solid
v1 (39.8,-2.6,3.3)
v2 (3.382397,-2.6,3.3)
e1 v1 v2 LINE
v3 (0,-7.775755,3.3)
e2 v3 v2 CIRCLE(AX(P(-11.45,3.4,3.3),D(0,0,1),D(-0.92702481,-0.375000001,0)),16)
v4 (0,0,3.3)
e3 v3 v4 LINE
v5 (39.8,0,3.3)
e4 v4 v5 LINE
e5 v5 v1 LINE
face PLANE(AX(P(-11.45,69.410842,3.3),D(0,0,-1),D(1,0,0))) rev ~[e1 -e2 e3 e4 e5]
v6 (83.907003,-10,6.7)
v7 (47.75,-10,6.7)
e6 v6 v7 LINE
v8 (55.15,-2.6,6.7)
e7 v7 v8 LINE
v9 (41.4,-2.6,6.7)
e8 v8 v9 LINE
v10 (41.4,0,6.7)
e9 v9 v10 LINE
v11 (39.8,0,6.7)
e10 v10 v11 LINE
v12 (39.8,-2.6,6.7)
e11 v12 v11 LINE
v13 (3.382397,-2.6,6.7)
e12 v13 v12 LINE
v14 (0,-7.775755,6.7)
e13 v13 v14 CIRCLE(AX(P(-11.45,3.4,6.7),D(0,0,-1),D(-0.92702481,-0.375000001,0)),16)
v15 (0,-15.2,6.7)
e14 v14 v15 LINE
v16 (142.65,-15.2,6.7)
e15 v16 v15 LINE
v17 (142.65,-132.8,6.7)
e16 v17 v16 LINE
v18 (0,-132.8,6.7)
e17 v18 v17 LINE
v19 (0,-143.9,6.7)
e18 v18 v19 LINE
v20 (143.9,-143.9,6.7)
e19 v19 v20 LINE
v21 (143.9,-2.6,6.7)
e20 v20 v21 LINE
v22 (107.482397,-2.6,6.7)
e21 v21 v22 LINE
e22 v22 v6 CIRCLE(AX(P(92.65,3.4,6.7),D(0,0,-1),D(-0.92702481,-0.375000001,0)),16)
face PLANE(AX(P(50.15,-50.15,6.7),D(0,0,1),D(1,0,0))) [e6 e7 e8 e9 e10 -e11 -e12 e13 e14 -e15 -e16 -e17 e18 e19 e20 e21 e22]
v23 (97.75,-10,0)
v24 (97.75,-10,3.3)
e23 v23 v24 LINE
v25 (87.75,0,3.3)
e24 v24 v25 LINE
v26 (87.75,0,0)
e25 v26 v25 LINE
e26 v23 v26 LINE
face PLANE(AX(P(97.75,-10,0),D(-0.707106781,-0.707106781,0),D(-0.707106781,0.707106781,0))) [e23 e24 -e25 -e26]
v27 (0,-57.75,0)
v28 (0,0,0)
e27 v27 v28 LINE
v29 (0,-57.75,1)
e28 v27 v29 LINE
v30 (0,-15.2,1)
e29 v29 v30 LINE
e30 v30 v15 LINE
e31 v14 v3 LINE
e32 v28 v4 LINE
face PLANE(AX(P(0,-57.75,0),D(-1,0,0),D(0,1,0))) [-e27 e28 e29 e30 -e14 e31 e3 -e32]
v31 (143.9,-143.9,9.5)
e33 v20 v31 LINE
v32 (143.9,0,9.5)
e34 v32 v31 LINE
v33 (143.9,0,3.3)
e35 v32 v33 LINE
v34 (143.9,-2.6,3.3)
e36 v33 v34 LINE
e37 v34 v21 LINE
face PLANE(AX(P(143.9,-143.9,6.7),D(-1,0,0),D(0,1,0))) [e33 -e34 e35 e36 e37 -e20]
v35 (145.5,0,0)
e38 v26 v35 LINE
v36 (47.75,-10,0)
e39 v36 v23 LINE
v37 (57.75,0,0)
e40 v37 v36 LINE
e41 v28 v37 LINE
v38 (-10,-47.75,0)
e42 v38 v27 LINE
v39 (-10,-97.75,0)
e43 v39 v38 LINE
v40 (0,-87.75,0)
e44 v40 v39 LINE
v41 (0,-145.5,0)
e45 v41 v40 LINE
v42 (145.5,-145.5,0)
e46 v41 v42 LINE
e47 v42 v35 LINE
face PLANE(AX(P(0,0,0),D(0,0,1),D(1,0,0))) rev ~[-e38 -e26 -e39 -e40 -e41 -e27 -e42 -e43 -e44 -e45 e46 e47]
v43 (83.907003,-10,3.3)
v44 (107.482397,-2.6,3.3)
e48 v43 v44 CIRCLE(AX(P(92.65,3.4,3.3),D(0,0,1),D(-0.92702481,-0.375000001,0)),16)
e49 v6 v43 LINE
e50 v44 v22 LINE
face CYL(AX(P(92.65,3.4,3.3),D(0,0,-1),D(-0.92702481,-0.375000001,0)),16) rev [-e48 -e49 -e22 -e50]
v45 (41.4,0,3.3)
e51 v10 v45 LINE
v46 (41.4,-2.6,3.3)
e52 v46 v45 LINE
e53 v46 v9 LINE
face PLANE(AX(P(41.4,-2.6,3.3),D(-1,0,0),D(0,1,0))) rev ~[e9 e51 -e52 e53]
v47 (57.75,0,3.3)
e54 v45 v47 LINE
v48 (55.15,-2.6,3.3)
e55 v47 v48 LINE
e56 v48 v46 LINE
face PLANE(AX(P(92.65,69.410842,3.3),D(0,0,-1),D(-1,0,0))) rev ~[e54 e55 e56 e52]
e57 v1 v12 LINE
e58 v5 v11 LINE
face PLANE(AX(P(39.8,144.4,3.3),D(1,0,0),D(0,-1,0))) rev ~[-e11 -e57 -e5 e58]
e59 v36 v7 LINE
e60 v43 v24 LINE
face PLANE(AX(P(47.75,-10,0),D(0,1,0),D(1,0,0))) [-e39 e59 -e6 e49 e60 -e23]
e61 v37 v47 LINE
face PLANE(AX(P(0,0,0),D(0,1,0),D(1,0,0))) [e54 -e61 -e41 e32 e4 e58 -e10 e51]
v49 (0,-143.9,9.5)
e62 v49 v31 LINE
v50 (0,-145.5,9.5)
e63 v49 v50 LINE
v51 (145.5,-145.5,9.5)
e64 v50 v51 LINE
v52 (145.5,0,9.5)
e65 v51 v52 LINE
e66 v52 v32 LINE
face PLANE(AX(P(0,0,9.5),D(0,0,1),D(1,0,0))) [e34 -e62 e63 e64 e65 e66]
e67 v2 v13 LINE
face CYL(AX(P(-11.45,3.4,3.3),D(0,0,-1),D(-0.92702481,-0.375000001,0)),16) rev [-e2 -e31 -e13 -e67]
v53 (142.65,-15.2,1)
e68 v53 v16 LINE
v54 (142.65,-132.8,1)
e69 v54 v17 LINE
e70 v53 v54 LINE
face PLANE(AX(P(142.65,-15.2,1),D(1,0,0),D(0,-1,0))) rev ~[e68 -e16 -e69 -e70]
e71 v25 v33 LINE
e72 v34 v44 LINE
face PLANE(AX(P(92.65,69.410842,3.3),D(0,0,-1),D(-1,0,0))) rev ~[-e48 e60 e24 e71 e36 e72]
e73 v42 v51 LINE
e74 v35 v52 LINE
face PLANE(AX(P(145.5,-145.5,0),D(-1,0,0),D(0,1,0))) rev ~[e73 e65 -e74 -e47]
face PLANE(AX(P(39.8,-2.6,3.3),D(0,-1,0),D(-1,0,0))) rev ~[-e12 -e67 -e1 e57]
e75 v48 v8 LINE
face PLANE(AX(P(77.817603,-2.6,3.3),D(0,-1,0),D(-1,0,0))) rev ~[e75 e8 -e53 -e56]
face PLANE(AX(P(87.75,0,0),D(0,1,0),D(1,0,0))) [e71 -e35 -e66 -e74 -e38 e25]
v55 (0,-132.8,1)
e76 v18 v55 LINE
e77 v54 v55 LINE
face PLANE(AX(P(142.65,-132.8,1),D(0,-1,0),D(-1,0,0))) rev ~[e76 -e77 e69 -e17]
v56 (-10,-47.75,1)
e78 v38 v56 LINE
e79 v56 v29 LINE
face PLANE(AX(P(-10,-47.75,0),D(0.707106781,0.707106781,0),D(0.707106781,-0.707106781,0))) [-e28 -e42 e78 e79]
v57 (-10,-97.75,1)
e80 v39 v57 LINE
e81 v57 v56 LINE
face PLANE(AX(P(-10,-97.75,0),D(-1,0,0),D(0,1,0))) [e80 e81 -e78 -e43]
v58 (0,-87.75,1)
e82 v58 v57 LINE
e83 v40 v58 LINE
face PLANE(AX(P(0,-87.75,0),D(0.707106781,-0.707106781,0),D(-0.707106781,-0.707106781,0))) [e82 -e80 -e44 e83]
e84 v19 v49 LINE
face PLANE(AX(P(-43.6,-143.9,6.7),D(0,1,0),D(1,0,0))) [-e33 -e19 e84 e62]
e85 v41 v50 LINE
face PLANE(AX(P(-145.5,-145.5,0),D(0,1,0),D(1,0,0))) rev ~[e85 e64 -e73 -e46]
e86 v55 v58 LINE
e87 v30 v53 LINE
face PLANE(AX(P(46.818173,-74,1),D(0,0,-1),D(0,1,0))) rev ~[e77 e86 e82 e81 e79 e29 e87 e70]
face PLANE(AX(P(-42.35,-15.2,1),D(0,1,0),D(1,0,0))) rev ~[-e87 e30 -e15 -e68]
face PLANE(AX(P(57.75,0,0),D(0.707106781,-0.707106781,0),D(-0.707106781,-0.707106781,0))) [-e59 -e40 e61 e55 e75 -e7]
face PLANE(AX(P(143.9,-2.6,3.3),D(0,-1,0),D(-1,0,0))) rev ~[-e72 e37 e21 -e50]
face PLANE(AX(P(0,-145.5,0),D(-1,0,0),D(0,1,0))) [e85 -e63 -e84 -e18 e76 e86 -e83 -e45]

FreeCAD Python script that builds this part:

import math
import FreeCAD as App
import Part
import Sketcher
Q = App.Units.Quantity


def add_polygon(sketch, points):
    """Adds a closed chain of lines whose ends are joined by coincident constraints."""
    first, n = sketch.GeometryCount, len(points)
    for a, b in zip(points, points[1:] + points[:1]):
        sketch.addGeometry(Part.LineSegment(App.Vector(*a, 0), App.Vector(*b, 0)), False)
    for i in range(n):
        sketch.addConstraint(Sketcher.Constraint("Coincident", first + i, 2, first + (i + 1) % n, 1))

doc = App.newDocument("Part")
params = doc.addObject("Spreadsheet::Sheet", "Params")
for row, (alias, value) in enumerate([
    ("sketch1_radius", "16 mm"),
    ("sketch1_height", "147 mm"),
    ("sketch1_width", "102.5 mm"),
    ("pad1_length", "6.2 mm"),
    ("sketch2_width", "187.5 mm"),
    ("pad2_length", "2.8 mm"),
    ("sketch3_radius", "17 mm"),
    ("sketch3_height", "185 mm"),
    ("sketch3_width", "117.6 mm"),
    ("pad3_length", "8.5 mm"),
    ("sketch4_radius", "16 mm"),
    ("sketch4_height", "147 mm"),
    ("sketch4_width", "102.5 mm"),
    ("pad4_length", "6.2 mm"),
    ("sketch5_radius", "17.7 mm"),
    ("sketch5_width", "17 mm"),
    ("pad5_length", "2.3 mm"),
    ("sketch6_radius", "17.7 mm"),
    ("sketch6_width", "17 mm"),
    ("pad6_length", "2.3 mm"),
    ("sketch7_width", "31 mm"),
    ("sketch7_width2", "17 mm"),
    ("sketch7_height", "7 mm"),
    ("sketch7_width3", "11.75 mm"),
    ("pad7_length", "2.3 mm"),
    ("sketch8_width", "31 mm"),
    ("sketch8_width2", "17 mm"),
    ("sketch8_height", "7 mm"),
    ("sketch8_width3", "11.75 mm"),
    ("pad8_length", "2.3 mm"),
    ("sketch9_radius", "21.7 mm"),
    ("sketch9_width", "17 mm"),
    ("pad9_length", "2.3 mm"),
    ("sketch10_width", "10 mm"),
    ("sketch10_width2", "57 mm"),
    ("sketch10_height", "17 mm"),
    ("sketch10_height2", "6.5 mm"),
    ("pad10_length", "2.3 mm"),
    ("sketch11_radius", "17 mm"),
    ("sketch11_width", "67.5 mm"),
    ("sketch11_height", "92.5 mm"),
    ("pad11_length", "8.5 mm"),
    ("sketch12_width", "291 mm"),
    ("pad12_length", "9.5 mm"),
    ("sketch13_width", "50 mm"),
    ("sketch13_width2", "291 mm"),
], start=1):
    params.set(f"A{row}", alias)
    params.set(f"B{row}", "=" + value)
    params.setAlias(f"B{row}", alias)

body = doc.addObject("PartDesign::Body", "Body")

# Sketch on XY plane
sketch1 = doc.addObject("Sketcher::SketchObject", "Sketch")
body.addObject(sketch1)
sketch1.AttachmentSupport = (doc.XY_Plane, [""])
sketch1.MapMode = "FlatFace"
sketch1.addGeometry(Part.LineSegment(App.Vector(51.25, 73.5, 0), App.Vector(-51.25, 73.5, 0)), False)
sketch1.addGeometry(Part.LineSegment(App.Vector(-51.25, 73.5, 0), App.Vector(-51.25, -73.5, 0)), False)
sketch1.addGeometry(Part.LineSegment(App.Vector(-51.25, -73.5, 0), App.Vector(-14.832397, -73.5, 0)), False)
sketch1.addGeometry(Part.ArcOfCircle(Part.Circle(App.Vector(0, -67.5, 0), App.Vector(0, 0, 1), 16), math.radians(-157.975687), math.radians(-22.024313)), False)
sketch1.addGeometry(Part.LineSegment(App.Vector(14.832397, -73.5, 0), App.Vector(51.25, -73.5, 0)), False)
sketch1.addGeometry(Part.LineSegment(App.Vector(51.25, -73.5, 0), App.Vector(51.25, 73.5, 0)), False)
sketch1.addConstraint(Sketcher.Constraint("Coincident", 0, 2, 1, 1))
sketch1.addConstraint(Sketcher.Constraint("Coincident", 1, 2, 2, 1))
sketch1.addConstraint(Sketcher.Constraint("Coincident", 2, 2, 3, 1))
sketch1.addConstraint(Sketcher.Constraint("Coincident", 3, 2, 4, 1))
sketch1.addConstraint(Sketcher.Constraint("Coincident", 4, 2, 5, 1))
sketch1.addConstraint(Sketcher.Constraint("Coincident", 5, 2, 0, 1))
sketch1.addConstraint(Sketcher.Constraint("Horizontal", 0))
sketch1.addConstraint(Sketcher.Constraint("Vertical", 1))
sketch1.addConstraint(Sketcher.Constraint("Horizontal", 2))
sketch1.addConstraint(Sketcher.Constraint("Horizontal", 4))
sketch1.addConstraint(Sketcher.Constraint("Vertical", 5))
sketch1.addConstraint(Sketcher.Constraint("Symmetric", 0, 2, 4, 2, -1, 1))
sketch1.addConstraint(Sketcher.Constraint("Symmetric", 2, 2, 3, 2, -2))
sketch1.addConstraint(Sketcher.Constraint("Radius", 3, Q("16 mm")))
sketch1.addConstraint(Sketcher.Constraint("DistanceY", 1, 2, 1, 1, Q("147 mm")))
sketch1.addConstraint(Sketcher.Constraint("DistanceX", 0, 2, 0, 1, Q("102.5 mm")))
sketch1.addConstraint(Sketcher.Constraint("DistanceY", 3, 3, 0, 2, Q("141 mm")))
sketch1.setExpression("Constraints[13]", "Params.sketch1_radius")
sketch1.setExpression("Constraints[14]", "Params.sketch1_height")
sketch1.setExpression("Constraints[15]", "Params.sketch1_width")
pad1 = doc.addObject("PartDesign::Pad", "Pad")
body.addObject(pad1)
pad1.Profile = sketch1
pad1.setExpression("Length", "Params.pad1_length")
body2 = doc.addObject("PartDesign::Body", "Body001")
doc.recompute()

body.Placement = App.Placement(App.Vector(92.65, 70.9, 3.3), App.Rotation(App.Vector(0, 0, 1), 0))
boolean = doc.addObject("PartDesign::Boolean", "Boolean")
body2.addObject(boolean)
boolean.Type = "Fuse"
boolean.addObjects([body])
body3 = doc.addObject("PartDesign::Body", "Body002")

# Sketch on XY plane
sketch2 = doc.addObject("Sketcher::SketchObject", "Sketch001")
body3.addObject(sketch2)
sketch2.AttachmentSupport = (doc.getObject("XY_Plane002"), [""])
sketch2.MapMode = "FlatFace"
add_polygon(sketch2, [(-93.75, 93.75), (-93.75, -93.75), (93.75, -93.75), (93.75, 93.75)])  # lines 0-3
sketch2.addConstraint(Sketcher.Constraint("Vertical", 0))
sketch2.addConstraint(Sketcher.Constraint("Horizontal", 1))
sketch2.addConstraint(Sketcher.Constraint("Vertical", 2))
sketch2.addConstraint(Sketcher.Constraint("Horizontal", 3))
sketch2.addConstraint(Sketcher.Constraint("Symmetric", 0, 2, 2, 2, -1, 1))
sketch2.addConstraint(Sketcher.Constraint("Equal", 3, 0))
sketch2.addConstraint(Sketcher.Constraint("DistanceX", 1, 1, 1, 2, Q("187.5 mm")))
sketch2.setExpression("Constraints[10]", "Params.sketch2_width")
pad2 = doc.addObject("PartDesign::Pad", "Pad001")
body3.addObject(pad2)
pad2.Profile = sketch2
pad2.setExpression("Length", "Params.pad2_length")
body4 = doc.addObject("PartDesign::Body", "Body003")
doc.recompute()

body3.Placement = App.Placement(App.Vector(50.15, -50.15, 6.7), App.Rotation(App.Vector(0, 0, 1), 0))
boolean2 = doc.addObject("PartDesign::Boolean", "Boolean001")
body4.addObject(boolean2)
boolean2.Type = "Fuse"
boolean2.addObjects([body3])
body5 = doc.addObject("PartDesign::Body", "Body004")

# Sketch on XY plane
sketch3 = doc.addObject("Sketcher::SketchObject", "Sketch002")
body5.addObject(sketch3)
sketch3.AttachmentSupport = (doc.getObject("XY_Plane004"), [""])
sketch3.MapMode = "FlatFace"
sketch3.addGeometry(Part.LineSegment(App.Vector(58.8, 92.5, 0), App.Vector(-58.8, 92.5, 0)), False)
sketch3.addGeometry(Part.LineSegment(App.Vector(-58.8, 92.5, 0), App.Vector(-58.8, -92.5, 0)), False)
sketch3.addGeometry(Part.LineSegment(App.Vector(-58.8, -92.5, 0), App.Vector(-17, -92.5, 0)), False)
sketch3.addGeometry(Part.ArcOfCircle(Part.Circle(App.Vector(0, -92.5, 0), App.Vector(0, 0, 1), 17), math.radians(180), math.radians(360)), False)
sketch3.addGeometry(Part.LineSegment(App.Vector(17, -92.5, 0), App.Vector(58.8, -92.5, 0)), False)
sketch3.addGeometry(Part.LineSegment(App.Vector(58.8, -92.5, 0), App.Vector(58.8, 92.5, 0)), False)
sketch3.addConstraint(Sketcher.Constraint("Coincident", 0, 2, 1, 1))
sketch3.addConstraint(Sketcher.Constraint("Coincident", 1, 2, 2, 1))
sketch3.addConstraint(Sketcher.Constraint("Coincident", 2, 2, 3, 1))
sketch3.addConstraint(Sketcher.Constraint("Coincident", 3, 2, 4, 1))
sketch3.addConstraint(Sketcher.Constraint("Coincident", 4, 2, 5, 1))
sketch3.addConstraint(Sketcher.Constraint("Coincident", 5, 2, 0, 1))
sketch3.addConstraint(Sketcher.Constraint("Horizontal", 0))
sketch3.addConstraint(Sketcher.Constraint("Vertical", 1))
sketch3.addConstraint(Sketcher.Constraint("Horizontal", 2))
sketch3.addConstraint(Sketcher.Constraint("Horizontal", 4))
sketch3.addConstraint(Sketcher.Constraint("Vertical", 5))
sketch3.addConstraint(Sketcher.Constraint("Symmetric", 0, 2, 4, 2, -1, 1))
sketch3.addConstraint(Sketcher.Constraint("Symmetric", 2, 2, 3, 2, -2))
sketch3.addConstraint(Sketcher.Constraint("Horizontal", 3, 3, 1, 2))
sketch3.addConstraint(Sketcher.Constraint("Radius", 3, Q("17 mm")))
sketch3.addConstraint(Sketcher.Constraint("DistanceY", 1, 2, 1, 1, Q("185 mm")))
sketch3.addConstraint(Sketcher.Constraint("DistanceX", 0, 2, 0, 1, Q("117.6 mm")))
sketch3.setExpression("Constraints[14]", "Params.sketch3_radius")
sketch3.setExpression("Constraints[15]", "Params.sketch3_height")
sketch3.setExpression("Constraints[16]", "Params.sketch3_width")
pad3 = doc.addObject("PartDesign::Pad", "Pad002")
body5.addObject(pad3)
pad3.Profile = sketch3
pad3.setExpression("Length", "Params.pad3_length")
body6 = doc.addObject("PartDesign::Body", "Body005")
doc.recompute()

body5.Placement = App.Placement(App.Vector(50.15, -74, 1), App.Rotation(App.Vector(0, 0, -1), 90))
boolean3 = doc.addObject("PartDesign::Boolean", "Boolean002")
body6.addObject(boolean3)
boolean3.Type = "Fuse"
boolean3.addObjects([body5])
body7 = doc.addObject("PartDesign::Body", "Body006")

# Sketch on XY plane
sketch4 = doc.addObject("Sketcher::SketchObject", "Sketch003")
body7.addObject(sketch4)
sketch4.AttachmentSupport = (doc.getObject("XY_Plane006"), [""])
sketch4.MapMode = "FlatFace"
sketch4.addGeometry(Part.LineSegment(App.Vector(-14.832397, 73.5, 0), App.Vector(-51.25, 73.5, 0)), False)
sketch4.addGeometry(Part.LineSegment(App.Vector(-51.25, 73.5, 0), App.Vector(-51.25, -73.5, 0)), False)
sketch4.addGeometry(Part.LineSegment(App.Vector(-51.25, -73.5, 0), App.Vector(51.25, -73.5, 0)), False)
sketch4.addGeometry(Part.LineSegment(App.Vector(51.25, -73.5, 0), App.Vector(51.25, 73.5, 0)), False)
sketch4.addGeometry(Part.LineSegment(App.Vector(51.25, 73.5, 0), App.Vector(14.832397, 73.5, 0)), False)
sketch4.addGeometry(Part.ArcOfCircle(Part.Circle(App.Vector(0, 67.5, 0), App.Vector(0, 0, 1), 16), math.radians(22.024313), math.radians(157.975687)), False)
sketch4.addConstraint(Sketcher.Constraint("Coincident", 0, 2, 1, 1))
sketch4.addConstraint(Sketcher.Constraint("Coincident", 1, 2, 2, 1))
sketch4.addConstraint(Sketcher.Constraint("Coincident", 2, 2, 3, 1))
sketch4.addConstraint(Sketcher.Constraint("Coincident", 3, 2, 4, 1))
sketch4.addConstraint(Sketcher.Constraint("Coincident", 4, 2, 5, 1))
sketch4.addConstraint(Sketcher.Constraint("Coincident", 5, 2, 0, 1))
sketch4.addConstraint(Sketcher.Constraint("Horizontal", 0))
sketch4.addConstraint(Sketcher.Constraint("Vertical", 1))
sketch4.addConstraint(Sketcher.Constraint("Horizontal", 2))
sketch4.addConstraint(Sketcher.Constraint("Vertical", 3))
sketch4.addConstraint(Sketcher.Constraint("Horizontal", 4))
sketch4.addConstraint(Sketcher.Constraint("Symmetric", 0, 2, 2, 2, -1, 1))
sketch4.addConstraint(Sketcher.Constraint("Symmetric", 4, 2, 5, 2, -2))
sketch4.addConstraint(Sketcher.Constraint("Radius", 5, Q("16 mm")))
sketch4.addConstraint(Sketcher.Constraint("DistanceY", 1, 2, 1, 1, Q("147 mm")))
sketch4.addConstraint(Sketcher.Constraint("DistanceX", 2, 1, 2, 2, Q("102.5 mm")))
sketch4.addConstraint(Sketcher.Constraint("DistanceY", 5, 3, 0, 2, Q("6 mm")))
sketch4.setExpression("Constraints[13]", "Params.sketch4_radius")
sketch4.setExpression("Constraints[14]", "Params.sketch4_height")
sketch4.setExpression("Constraints[15]", "Params.sketch4_width")
pad4 = doc.addObject("PartDesign::Pad", "Pad003")
body7.addObject(pad4)
pad4.Profile = sketch4
pad4.setExpression("Length", "Params.pad4_length")
body8 = doc.addObject("PartDesign::Body", "Body007")
doc.recompute()

body7.Placement = App.Placement(App.Vector(-11.45, 70.9, 3.3), App.Rotation(App.Vector(0, 0, 1), 180))
boolean4 = doc.addObject("PartDesign::Boolean", "Boolean003")
body8.addObject(boolean4)
boolean4.Type = "Fuse"
boolean4.addObjects([body7])
body9 = doc.addObject("PartDesign::Body", "Body008")

# Sketch on XY plane
sketch5 = doc.addObject("Sketcher::SketchObject", "Sketch004")
body9.addObject(sketch5)
sketch5.AttachmentSupport = (doc.getObject("XY_Plane008"), [""])
sketch5.MapMode = "FlatFace"
sketch5.addGeometry(Part.ArcOfCircle(Part.Circle(App.Vector(24.025463, 0, 0), App.Vector(0, 0, 1), 17.7), math.radians(-151.299837), math.radians(-28.700163)), False)
sketch5.addGeometry(Part.LineSegment(App.Vector(39.550926, -8.5, 0), App.Vector(51.25, -8.5, 0)), False)
sketch5.addGeometry(Part.LineSegment(App.Vector(51.25, -8.5, 0), App.Vector(51.25, 8.5, 0)), False)
sketch5.addGeometry(Part.LineSegment(App.Vector(51.25, 8.5, 0), App.Vector(39.550926, 8.5, 0)), False)
sketch5.addGeometry(Part.ArcOfCircle(Part.Circle(App.Vector(24.025463, 0, 0), App.Vector(0, 0, 1), 17.7), math.radians(28.700163), math.radians(151.299837)), False)
sketch5.addGeometry(Part.LineSegment(App.Vector(8.5, 8.5, 0), App.Vector(-8.5, 8.5, 0)), False)
sketch5.addGeometry(Part.ArcOfCircle(Part.Circle(App.Vector(-24.025463, 0, 0), App.Vector(0, 0, 1), 17.7), math.radians(28.700163), math.radians(151.299837)), False)
sketch5.addGeometry(Part.LineSegment(App.Vector(-39.550926, 8.5, 0), App.Vector(-51.25, 8.5, 0)), False)
sketch5.addGeometry(Part.LineSegment(App.Vector(-51.25, 8.5, 0), App.Vector(-51.25, -8.5, 0)), False)
sketch5.addGeometry(Part.LineSegment(App.Vector(-51.25, -8.5, 0), App.Vector(-39.550926, -8.5, 0)), False)
sketch5.addGeometry(Part.ArcOfCircle(Part.Circle(App.Vector(-24.025463, 0, 0), App.Vector(0, 0, 1), 17.7), math.radians(-151.299837), math.radians(-28.700163)), False)
sketch5.addGeometry(Part.LineSegment(App.Vector(-8.5, -8.5, 0), App.Vector(8.5, -8.5, 0)), False)
sketch5.addConstraint(Sketcher.Constraint("Coincident", 0, 2, 1, 1))
sketch5.addConstraint(Sketcher.Constraint("Coincident", 1, 2, 2, 1))
sketch5.addConstraint(Sketcher.Constraint("Coincident", 2, 2, 3, 1))
sketch5.addConstraint(Sketcher.Constraint("Coincident", 3, 2, 4, 1))
sketch5.addConstraint(Sketcher.Constraint("Coincident", 4, 2, 5, 1))
sketch5.addConstraint(Sketcher.Constraint("Coincident", 5, 2, 6, 1))
sketch5.addConstraint(Sketcher.Constraint("Coincident", 6, 2, 7, 1))
sketch5.addConstraint(Sketcher.Constraint("Coincident", 7, 2, 8, 1))
sketch5.addConstraint(Sketcher.Constraint("Coincident", 8, 2, 9, 1))
sketch5.addConstraint(Sketcher.Constraint("Coincident", 9, 2, 10, 1))
sketch5.addConstraint(Sketcher.Constraint("Coincident", 10, 2, 11, 1))
sketch5.addConstraint(Sketcher.Constraint("Coincident", 11, 2, 0, 1))
sketch5.addConstraint(Sketcher.Constraint("Horizontal", 1))
sketch5.addConstraint(Sketcher.Constraint("Vertical", 2))
sketch5.addConstraint(Sketcher.Constraint("Horizontal", 3))
sketch5.addConstraint(Sketcher.Constraint("Horizontal", 5))
sketch5.addConstraint(Sketcher.Constraint("Horizontal", 7))
sketch5.addConstraint(Sketcher.Constraint("Vertical", 8))
sketch5.addConstraint(Sketcher.Constraint("Horizontal", 9))
sketch5.addConstraint(Sketcher.Constraint("Horizontal", 11))
sketch5.addConstraint(Sketcher.Constraint("Coincident", 4, 3, 0, 3))
sketch5.addConstraint(Sketcher.Constraint("Coincident", 10, 3, 6, 3))
sketch5.addConstraint(Sketcher.Constraint("Equal", 0, 4))
sketch5.addConstraint(Sketcher.Constraint("Equal", 4, 6))
sketch5.addConstraint(Sketcher.Constraint("Equal", 6, 10))
sketch5.addConstraint(Sketcher.Constraint("Symmetric", 0, 3, 6, 3, -1, 1))
sketch5.addConstraint(Sketcher.Constraint("Symmetric", 1, 2, 7, 2, -1, 1))
sketch5.addConstraint(Sketcher.Constraint("Symmetric", 3, 2, 6, 2, -2))
sketch5.addConstraint(Sketcher.Constraint("Horizontal", 3, 2, 4, 2))
sketch5.addConstraint(Sketcher.Constraint("Horizontal", 1, 2, 8, 2))
sketch5.addConstraint(Sketcher.Constraint("Horizontal", 9, 2, 10, 2))
sketch5.addConstraint(Sketcher.Constraint("Equal", 11, 2))
sketch5.addConstraint(Sketcher.Constraint("Radius", 0, Q("17.7 mm")))
sketch5.addConstraint(Sketcher.Constraint("DistanceX", 5, 2, 5, 1, Q("17 mm")))
sketch5.addConstraint(Sketcher.Constraint("DistanceX", -1, 1, 1, 2, Q("51.25 mm")))
sketch5.setExpression("Constraints[32]", "Params.sketch5_radius")
sketch5.setExpression("Constraints[33]", "Params.sketch5_width")
pad5 = doc.addObject("PartDesign::Pad", "Pad004")
body9.addObject(pad5)
pad5.Profile = sketch5
pad5.setExpression("Length", "Params.pad5_length")
body10 = doc.addObject("PartDesign::Body", "Body009")
doc.recompute()

body9.Placement = App.Placement(App.Vector(92.65, 106.5, 1), App.Rotation(App.Vector(0, 0, 1), 0))
boolean5 = doc.addObject("PartDesign::Boolean", "Boolean004")
body10.addObject(boolean5)
boolean5.Type = "Fuse"
boolean5.addObjects([body9])
body11 = doc.addObject("PartDesign::Body", "Body010")

# Sketch on XY plane
sketch6 = doc.addObject("Sketcher::SketchObject", "Sketch005")
body11.addObject(sketch6)
sketch6.AttachmentSupport = (doc.getObject("XY_Plane010"), [""])
sketch6.MapMode = "FlatFace"
sketch6.addGeometry(Part.ArcOfCircle(Part.Circle(App.Vector(24.025463, 0, 0), App.Vector(0, 0, 1), 17.7), math.radians(-151.299837), math.radians(-28.700163)), False)
sketch6.addGeometry(Part.LineSegment(App.Vector(39.550926, -8.5, 0), App.Vector(51.25, -8.5, 0)), False)
sketch6.addGeometry(Part.LineSegment(App.Vector(51.25, -8.5, 0), App.Vector(51.25, 8.5, 0)), False)
sketch6.addGeometry(Part.LineSegment(App.Vector(51.25, 8.5, 0), App.Vector(39.550926, 8.5, 0)), False)
sketch6.addGeometry(Part.ArcOfCircle(Part.Circle(App.Vector(24.025463, 0, 0), App.Vector(0, 0, 1), 17.7), math.radians(28.700163), math.radians(151.299837)), False)
sketch6.addGeometry(Part.LineSegment(App.Vector(8.5, 8.5, 0), App.Vector(-8.5, 8.5, 0)), False)
sketch6.addGeometry(Part.ArcOfCircle(Part.Circle(App.Vector(-24.025463, 0, 0), App.Vector(0, 0, 1), 17.7), math.radians(28.700163), math.radians(151.299837)), False)
sketch6.addGeometry(Part.LineSegment(App.Vector(-39.550926, 8.5, 0), App.Vector(-51.25, 8.5, 0)), False)
sketch6.addGeometry(Part.LineSegment(App.Vector(-51.25, 8.5, 0), App.Vector(-51.25, -8.5, 0)), False)
sketch6.addGeometry(Part.LineSegment(App.Vector(-51.25, -8.5, 0), App.Vector(-39.550926, -8.5, 0)), False)
sketch6.addGeometry(Part.ArcOfCircle(Part.Circle(App.Vector(-24.025463, 0, 0), App.Vector(0, 0, 1), 17.7), math.radians(-151.299837), math.radians(-28.700163)), False)
sketch6.addGeometry(Part.LineSegment(App.Vector(-8.5, -8.5, 0), App.Vector(8.5, -8.5, 0)), False)
sketch6.addConstraint(Sketcher.Constraint("Coincident", 0, 2, 1, 1))
sketch6.addConstraint(Sketcher.Constraint("Coincident", 1, 2, 2, 1))
sketch6.addConstraint(Sketcher.Constraint("Coincident", 2, 2, 3, 1))
sketch6.addConstraint(Sketcher.Constraint("Coincident", 3, 2, 4, 1))
sketch6.addConstraint(Sketcher.Constraint("Coincident", 4, 2, 5, 1))
sketch6.addConstraint(Sketcher.Constraint("Coincident", 5, 2, 6, 1))
sketch6.addConstraint(Sketcher.Constraint("Coincident", 6, 2, 7, 1))
sketch6.addConstraint(Sketcher.Constraint("Coincident", 7, 2, 8, 1))
sketch6.addConstraint(Sketcher.Constraint("Coincident", 8, 2, 9, 1))
sketch6.addConstraint(Sketcher.Constraint("Coincident", 9, 2, 10, 1))
sketch6.addConstraint(Sketcher.Constraint("Coincident", 10, 2, 11, 1))
sketch6.addConstraint(Sketcher.Constraint("Coincident", 11, 2, 0, 1))
sketch6.addConstraint(Sketcher.Constraint("Horizontal", 1))
sketch6.addConstraint(Sketcher.Constraint("Vertical", 2))
sketch6.addConstraint(Sketcher.Constraint("Horizontal", 3))
sketch6.addConstraint(Sketcher.Constraint("Horizontal", 5))
sketch6.addConstraint(Sketcher.Constraint("Horizontal", 7))
sketch6.addConstraint(Sketcher.Constraint("Vertical", 8))
sketch6.addConstraint(Sketcher.Constraint("Horizontal", 9))
sketch6.addConstraint(Sketcher.Constraint("Horizontal", 11))
sketch6.addConstraint(Sketcher.Constraint("Coincident", 4, 3, 0, 3))
sketch6.addConstraint(Sketcher.Constraint("Coincident", 10, 3, 6, 3))
sketch6.addConstraint(Sketcher.Constraint("Equal", 0, 4))
sketch6.addConstraint(Sketcher.Constraint("Equal", 4, 6))
sketch6.addConstraint(Sketcher.Constraint("Equal", 6, 10))
sketch6.addConstraint(Sketcher.Constraint("Symmetric", 0, 3, 6, 3, -1, 1))
sketch6.addConstraint(Sketcher.Constraint("Symmetric", 1, 2, 7, 2, -1, 1))
sketch6.addConstraint(Sketcher.Constraint("Symmetric", 3, 2, 6, 2, -2))
sketch6.addConstraint(Sketcher.Constraint("Horizontal", 3, 2, 4, 2))
sketch6.addConstraint(Sketcher.Constraint("Horizontal", 1, 2, 8, 2))
sketch6.addConstraint(Sketcher.Constraint("Horizontal", 9, 2, 10, 2))
sketch6.addConstraint(Sketcher.Constraint("Equal", 11, 2))
sketch6.addConstraint(Sketcher.Constraint("Radius", 0, Q("17.7 mm")))
sketch6.addConstraint(Sketcher.Constraint("DistanceX", 5, 2, 5, 1, Q("17 mm")))
sketch6.addConstraint(Sketcher.Constraint("DistanceX", -1, 1, 1, 2, Q("51.25 mm")))
sketch6.setExpression("Constraints[32]", "Params.sketch6_radius")
sketch6.setExpression("Constraints[33]", "Params.sketch6_width")
pad6 = doc.addObject("PartDesign::Pad", "Pad005")
body11.addObject(pad6)
pad6.Profile = sketch6
pad6.setExpression("Length", "Params.pad6_length")
body12 = doc.addObject("PartDesign::Body", "Body011")
doc.recompute()

body11.Placement = App.Placement(App.Vector(-11.45, 106.5, 1), App.Rotation(App.Vector(0, 0, 1), 0))
boolean6 = doc.addObject("PartDesign::Boolean", "Boolean005")
body12.addObject(boolean6)
boolean6.Type = "Fuse"
boolean6.addObjects([body11])
body13 = doc.addObject("PartDesign::Body", "Body012")

# Sketch on XY plane
sketch7 = doc.addObject("Sketcher::SketchObject", "Sketch006")
body13.addObject(sketch7)
sketch7.AttachmentSupport = (doc.getObject("XY_Plane012"), [""])
sketch7.MapMode = "FlatFace"
add_polygon(sketch7, [(-39.5, 8.5), (-51.25, 8.5), (-51.25, -8.5), (-39.5, -8.5), (-39.5, -15.5), (-8.5, -15.5), (-8.5, -8.5), (8.5, -8.5), (8.5, -15.5), (39.5, -15.5), (39.5, -8.5), (51.25, -8.5), (51.25, 8.5), (39.5, 8.5), (39.5, 15.5), (8.5, 15.5), (8.5, 8.5), (-8.5, 8.5), (-8.5, 15.5), (-39.5, 15.5)])  # lines 0-19
sketch7.addConstraint(Sketcher.Constraint("Horizontal", 0))
sketch7.addConstraint(Sketcher.Constraint("Vertical", 1))
sketch7.addConstraint(Sketcher.Constraint("Horizontal", 2))
sketch7.addConstraint(Sketcher.Constraint("Vertical", 3))
sketch7.addConstraint(Sketcher.Constraint("Horizontal", 4))
sketch7.addConstraint(Sketcher.Constraint("Vertical", 5))
sketch7.addConstraint(Sketcher.Constraint("Horizontal", 6))
sketch7.addConstraint(Sketcher.Constraint("Vertical", 7))
sketch7.addConstraint(Sketcher.Constraint("Horizontal", 8))
sketch7.addConstraint(Sketcher.Constraint("Vertical", 9))
sketch7.addConstraint(Sketcher.Constraint("Horizontal", 10))
sketch7.addConstraint(Sketcher.Constraint("Vertical", 11))
sketch7.addConstraint(Sketcher.Constraint("Horizontal", 12))
sketch7.addConstraint(Sketcher.Constraint("Vertical", 13))
sketch7.addConstraint(Sketcher.Constraint("Horizontal", 14))
sketch7.addConstraint(Sketcher.Constraint("Vertical", 15))
sketch7.addConstraint(Sketcher.Constraint("Horizontal", 16))
sketch7.addConstraint(Sketcher.Constraint("Vertical", 17))
sketch7.addConstraint(Sketcher.Constraint("Horizontal", 18))
sketch7.addConstraint(Sketcher.Constraint("Vertical", 19))
sketch7.addConstraint(Sketcher.Constraint("Symmetric", 0, 2, 10, 2, -1, 1))
sketch7.addConstraint(Sketcher.Constraint("Symmetric", 2, 2, 12, 2, -1, 1))
sketch7.addConstraint(Sketcher.Constraint("Symmetric", 4, 2, 14, 2, -1, 1))
sketch7.addConstraint(Sketcher.Constraint("Symmetric", 6, 2, 16, 2, -1, 1))
sketch7.addConstraint(Sketcher.Constraint("Symmetric", 8, 2, 18, 2, -1, 1))
sketch7.addConstraint(Sketcher.Constraint("Symmetric", 4, 2, 7, 2, -2))
sketch7.addConstraint(Sketcher.Constraint("Symmetric", 2, 2, 9, 2, -2))
sketch7.addConstraint(Sketcher.Constraint("Horizontal", 2, 2, 5, 2))
sketch7.addConstraint(Sketcher.Constraint("Equal", 16, 1))
sketch7.addConstraint(Sketcher.Constraint("DistanceX", 4, 1, 4, 2, Q("31 mm")))
sketch7.addConstraint(Sketcher.Constraint("DistanceX", 6, 1, 6, 2, Q("17 mm")))
sketch7.addConstraint(Sketcher.Constraint("DistanceY", 3, 2, 3, 1, Q("7 mm")))
sketch7.addConstraint(Sketcher.Constraint("DistanceX", 0, 2, 0, 1, Q("11.75 mm")))
sketch7.setExpression("Constraints[49]", "Params.sketch7_width")
sketch7.setExpression("Constraints[50]", "Params.sketch7_width2")
sketch7.setExpression("Constraints[51]", "Params.sketch7_height")
sketch7.setExpression("Constraints[52]", "Params.sketch7_width3")
pad7 = doc.addObject("PartDesign::Pad", "Pad006")
body13.addObject(pad7)
pad7.Profile = sketch7
pad7.setExpression("Length", "Params.pad7_length")
body14 = doc.addObject("PartDesign::Body", "Body013")
doc.recompute()

body13.Placement = App.Placement(App.Vector(92.65, 66.7, 1), App.Rotation(App.Vector(0, 0, 1), 0))
boolean7 = doc.addObject("PartDesign::Boolean", "Boolean006")
body14.addObject(boolean7)
boolean7.Type = "Fuse"
boolean7.addObjects([body13])
body15 = doc.addObject("PartDesign::Body", "Body014")

# Sketch on XY plane
sketch8 = doc.addObject("Sketcher::SketchObject", "Sketch007")
body15.addObject(sketch8)
sketch8.AttachmentSupport = (doc.getObject("XY_Plane014"), [""])
sketch8.MapMode = "FlatFace"
add_polygon(sketch8, [(-39.5, 8.5), (-51.25, 8.5), (-51.25, -8.5), (-39.5, -8.5), (-39.5, -15.5), (-8.5, -15.5), (-8.5, -8.5), (8.5, -8.5), (8.5, -15.5), (39.5, -15.5), (39.5, -8.5), (51.25, -8.5), (51.25, 8.5), (39.5, 8.5), (39.5, 15.5), (8.5, 15.5), (8.5, 8.5), (-8.5, 8.5), (-8.5, 15.5), (-39.5, 15.5)])  # lines 0-19
sketch8.addConstraint(Sketcher.Constraint("Horizontal", 0))
sketch8.addConstraint(Sketcher.Constraint("Vertical", 1))
sketch8.addConstraint(Sketcher.Constraint("Horizontal", 2))
sketch8.addConstraint(Sketcher.Constraint("Vertical", 3))
sketch8.addConstraint(Sketcher.Constraint("Horizontal", 4))
sketch8.addConstraint(Sketcher.Constraint("Vertical", 5))
sketch8.addConstraint(Sketcher.Constraint("Horizontal", 6))
sketch8.addConstraint(Sketcher.Constraint("Vertical", 7))
sketch8.addConstraint(Sketcher.Constraint("Horizontal", 8))
sketch8.addConstraint(Sketcher.Constraint("Vertical", 9))
sketch8.addConstraint(Sketcher.Constraint("Horizontal", 10))
sketch8.addConstraint(Sketcher.Constraint("Vertical", 11))
sketch8.addConstraint(Sketcher.Constraint("Horizontal", 12))
sketch8.addConstraint(Sketcher.Constraint("Vertical", 13))
sketch8.addConstraint(Sketcher.Constraint("Horizontal", 14))
sketch8.addConstraint(Sketcher.Constraint("Vertical", 15))
sketch8.addConstraint(Sketcher.Constraint("Horizontal", 16))
sketch8.addConstraint(Sketcher.Constraint("Vertical", 17))
sketch8.addConstraint(Sketcher.Constraint("Horizontal", 18))
sketch8.addConstraint(Sketcher.Constraint("Vertical", 19))
sketch8.addConstraint(Sketcher.Constraint("Symmetric", 0, 2, 10, 2, -1, 1))
sketch8.addConstraint(Sketcher.Constraint("Symmetric", 2, 2, 12, 2, -1, 1))
sketch8.addConstraint(Sketcher.Constraint("Symmetric", 4, 2, 14, 2, -1, 1))
sketch8.addConstraint(Sketcher.Constraint("Symmetric", 6, 2, 16, 2, -1, 1))
sketch8.addConstraint(Sketcher.Constraint("Symmetric", 8, 2, 18, 2, -1, 1))
sketch8.addConstraint(Sketcher.Constraint("Symmetric", 4, 2, 7, 2, -2))
sketch8.addConstraint(Sketcher.Constraint("Symmetric", 2, 2, 9, 2, -2))
sketch8.addConstraint(Sketcher.Constraint("Horizontal", 2, 2, 5, 2))
sketch8.addConstraint(Sketcher.Constraint("Equal", 16, 1))
sketch8.addConstraint(Sketcher.Constraint("DistanceX", 4, 1, 4, 2, Q("31 mm")))
sketch8.addConstraint(Sketcher.Constraint("DistanceX", 6, 1, 6, 2, Q("17 mm")))
sketch8.addConstraint(Sketcher.Constraint("DistanceY", 3, 2, 3, 1, Q("7 mm")))
sketch8.addConstraint(Sketcher.Constraint("DistanceX", 0, 2, 0, 1, Q("11.75 mm")))
sketch8.setExpression("Constraints[49]", "Params.sketch8_width")
sketch8.setExpression("Constraints[50]", "Params.sketch8_width2")
sketch8.setExpression("Constraints[51]", "Params.sketch8_height")
sketch8.setExpression("Constraints[52]", "Params.sketch8_width3")
pad8 = doc.addObject("PartDesign::Pad", "Pad007")
body15.addObject(pad8)
pad8.Profile = sketch8
pad8.setExpression("Length", "Params.pad8_length")
body16 = doc.addObject("PartDesign::Body", "Body015")
doc.recompute()

body15.Placement = App.Placement(App.Vector(-11.45, 66.7, 1), App.Rotation(App.Vector(0, 0, 1), 0))
boolean8 = doc.addObject("PartDesign::Boolean", "Boolean007")
body16.addObject(boolean8)
boolean8.Type = "Fuse"
boolean8.addObjects([body15])
body17 = doc.addObject("PartDesign::Body", "Body016")

# Sketch on XY plane
sketch9 = doc.addObject("Sketcher::SketchObject", "Sketch008")
body17.addObject(sketch9)
sketch9.AttachmentSupport = (doc.getObject("XY_Plane016"), [""])
sketch9.MapMode = "FlatFace"
sketch9.addGeometry(Part.LineSegment(App.Vector(-19.965971, 8.5, 0), App.Vector(-36.965971, 8.5, 0)), False)
sketch9.addGeometry(Part.LineSegment(App.Vector(-36.965971, 8.5, 0), App.Vector(-36.965971, -8.5, 0)), False)
sketch9.addGeometry(Part.LineSegment(App.Vector(-36.965971, -8.5, 0), App.Vector(-19.965971, -8.5, 0)), False)
sketch9.addGeometry(Part.ArcOfCircle(Part.Circle(App.Vector(0, 0, 0), App.Vector(0, 0, 1), 21.7), math.radians(-156.939365), math.radians(-23.060635)), False)
sketch9.addGeometry(Part.LineSegment(App.Vector(19.965971, -8.5, 0), App.Vector(36.965971, -8.5, 0)), False)
sketch9.addGeometry(Part.LineSegment(App.Vector(36.965971, -8.5, 0), App.Vector(36.965971, 8.5, 0)), False)
sketch9.addGeometry(Part.LineSegment(App.Vector(36.965971, 8.5, 0), App.Vector(19.965971, 8.5, 0)), False)
sketch9.addGeometry(Part.ArcOfCircle(Part.Circle(App.Vector(0, 0, 0), App.Vector(0, 0, 1), 21.7), math.radians(23.060635), math.radians(156.939365)), False)
sketch9.addConstraint(Sketcher.Constraint("Coincident", 0, 2, 1, 1))
sketch9.addConstraint(Sketcher.Constraint("Coincident", 1, 2, 2, 1))
sketch9.addConstraint(Sketcher.Constraint("Coincident", 2, 2, 3, 1))
sketch9.addConstraint(Sketcher.Constraint("Coincident", 3, 2, 4, 1))
sketch9.addConstraint(Sketcher.Constraint("Coincident", 4, 2, 5, 1))
sketch9.addConstraint(Sketcher.Constraint("Coincident", 5, 2, 6, 1))
sketch9.addConstraint(Sketcher.Constraint("Coincident", 6, 2, 7, 1))
sketch9.addConstraint(Sketcher.Constraint("Coincident", 7, 2, 0, 1))
sketch9.addConstraint(Sketcher.Constraint("Horizontal", 0))
sketch9.addConstraint(Sketcher.Constraint("Vertical", 1))
sketch9.addConstraint(Sketcher.Constraint("Horizontal", 2))
sketch9.addConstraint(Sketcher.Constraint("Horizontal", 4))
sketch9.addConstraint(Sketcher.Constraint("Vertical", 5))
sketch9.addConstraint(Sketcher.Constraint("Horizontal", 6))
sketch9.addConstraint(Sketcher.Constraint("Coincident", 3, 3, -1, 1))
sketch9.addConstraint(Sketcher.Constraint("Coincident", 7, 3, -1, 1))
sketch9.addConstraint(Sketcher.Constraint("Equal", 3, 7))
sketch9.addConstraint(Sketcher.Constraint("Symmetric", 0, 2, 4, 2, -1, 1))
sketch9.addConstraint(Sketcher.Constraint("Horizontal", 2, 2, 3, 2))
sketch9.addConstraint(Sketcher.Constraint("Horizontal", 0, 2, 5, 2))
sketch9.addConstraint(Sketcher.Constraint("Equal", 6, 1))
sketch9.addConstraint(Sketcher.Constraint("Radius", 3, Q("21.7 mm")))
sketch9.addConstraint(Sketcher.Constraint("DistanceX", 0, 2, 0, 1, Q("17 mm")))
sketch9.setExpression("Constraints[21]", "Params.sketch9_radius")
sketch9.setExpression("Constraints[22]", "Params.sketch9_width")
pad9 = doc.addObject("PartDesign::Pad", "Pad008")
body17.addObject(pad9)
pad9.Profile = sketch9
pad9.setExpression("Length", "Params.pad9_length")
body18 = doc.addObject("PartDesign::Body", "Body017")
doc.recompute()

body17.Placement = App.Placement(App.Vector(92.65, 22.7, 1), App.Rotation(App.Vector(0, 0, 1), 0))
boolean9 = doc.addObject("PartDesign::Boolean", "Boolean008")
body18.addObject(boolean9)
boolean9.Type = "Fuse"
boolean9.addObjects([body17])
body19 = doc.addObject("PartDesign::Body", "Body018")

# Sketch on XY plane
sketch10 = doc.addObject("Sketcher::SketchObject", "Sketch009")
body19.addObject(sketch10)
sketch10.AttachmentSupport = (doc.getObject("XY_Plane018"), [""])
sketch10.MapMode = "FlatFace"
add_polygon(sketch10, [(-28.5, 8.5), (-38.5, 8.5), (-38.5, -8.5), (-28.5, -8.5), (-28.5, -15), (28.5, -15), (28.5, -8.5), (38.5, -8.5), (38.5, 8.5), (28.5, 8.5), (28.5, 15), (-28.5, 15)])  # lines 0-11
sketch10.addConstraint(Sketcher.Constraint("Horizontal", 0))
sketch10.addConstraint(Sketcher.Constraint("Vertical", 1))
sketch10.addConstraint(Sketcher.Constraint("Horizontal", 2))
sketch10.addConstraint(Sketcher.Constraint("Vertical", 3))
sketch10.addConstraint(Sketcher.Constraint("Horizontal", 4))
sketch10.addConstraint(Sketcher.Constraint("Vertical", 5))
sketch10.addConstraint(Sketcher.Constraint("Horizontal", 6))
sketch10.addConstraint(Sketcher.Constraint("Vertical", 7))
sketch10.addConstraint(Sketcher.Constraint("Horizontal", 8))
sketch10.addConstraint(Sketcher.Constraint("Vertical", 9))
sketch10.addConstraint(Sketcher.Constraint("Horizontal", 10))
sketch10.addConstraint(Sketcher.Constraint("Vertical", 11))
sketch10.addConstraint(Sketcher.Constraint("Symmetric", 0, 2, 6, 2, -1, 1))
sketch10.addConstraint(Sketcher.Constraint("Symmetric", 2, 2, 8, 2, -1, 1))
sketch10.addConstraint(Sketcher.Constraint("Symmetric", 4, 2, 10, 2, -1, 1))
sketch10.addConstraint(Sketcher.Constraint("Symmetric", 2, 2, 5, 2, -2))
sketch10.addConstraint(Sketcher.Constraint("DistanceX", 0, 2, 0, 1, Q("10 mm")))
sketch10.addConstraint(Sketcher.Constraint("DistanceX", 4, 1, 4, 2, Q("57 mm")))
sketch10.addConstraint(Sketcher.Constraint("DistanceY", 1, 2, 1, 1, Q("17 mm")))
sketch10.addConstraint(Sketcher.Constraint("DistanceY", 3, 2, 3, 1, Q("6.5 mm")))
sketch10.setExpression("Constraints[28]", "Params.sketch10_width")
sketch10.setExpression("Constraints[29]", "Params.sketch10_width2")
sketch10.setExpression("Constraints[30]", "Params.sketch10_height")
sketch10.setExpression("Constraints[31]", "Params.sketch10_height2")
pad10 = doc.addObject("PartDesign::Pad", "Pad009")
body19.addObject(pad10)
pad10.Profile = sketch10
pad10.setExpression("Length", "Params.pad10_length")
body20 = doc.addObject("PartDesign::Body", "Body019")
doc.recompute()

body19.Placement = App.Placement(App.Vector(-11.45, 22.7, 1), App.Rotation(App.Vector(0, 0, 1), 0))
boolean10 = doc.addObject("PartDesign::Boolean", "Boolean009")
body20.addObject(boolean10)
boolean10.Type = "Fuse"
boolean10.addObjects([body19])
body21 = doc.addObject("PartDesign::Body", "Body020")

# Sketch on XY plane
sketch11 = doc.addObject("Sketcher::SketchObject", "Sketch010")
body21.addObject(sketch11)
sketch11.AttachmentSupport = (doc.getObject("XY_Plane020"), [""])
sketch11.MapMode = "FlatFace"
sketch11.addGeometry(Part.LineSegment(App.Vector(33.75, 143.9, 0), App.Vector(-33.75, 143.9, 0)), False)
sketch11.addGeometry(Part.LineSegment(App.Vector(-33.75, 143.9, 0), App.Vector(-33.75, 113.555974, 0)), False)
sketch11.addGeometry(Part.ArcOfCircle(Part.Circle(App.Vector(-27.75, 97.65, 0), App.Vector(0, 0, 1), 17), math.radians(110.667317), math.radians(249.332683)), False)
sketch11.addGeometry(Part.LineSegment(App.Vector(-33.75, 81.744026, 0), App.Vector(-33.75, 51.4, 0)), False)
sketch11.addGeometry(Part.LineSegment(App.Vector(-33.75, 51.4, 0), App.Vector(-10, 51.4, 0)), False)
sketch11.addGeometry(Part.ArcOfCircle(Part.Circle(App.Vector(-10, 48.825, 0), App.Vector(0, 0, 1), 2.575), math.radians(-90), math.radians(90)), False)
sketch11.addGeometry(Part.LineSegment(App.Vector(-10, 46.25, 0), App.Vector(-33.75, 46.25, 0)), False)
sketch11.addGeometry(Part.LineSegment(App.Vector(-33.75, 46.25, 0), App.Vector(-33.75, 15.905974, 0)), False)
sketch11.addGeometry(Part.ArcOfCircle(Part.Circle(App.Vector(-27.75, 0, 0), App.Vector(0, 0, 1), 17), math.radians(110.667317), math.radians(249.332683)), False)
sketch11.addGeometry(Part.LineSegment(App.Vector(-33.75, -15.905974, 0), App.Vector(-33.75, -46.25, 0)), False)
sketch11.addGeometry(Part.LineSegment(App.Vector(-33.75, -46.25, 0), App.Vector(-10, -46.25, 0)), False)
sketch11.addGeometry(Part.ArcOfCircle(Part.Circle(App.Vector(-10, -48.825, 0), App.Vector(0, 0, 1), 2.575), math.radians(-90), math.radians(90)), False)
sketch11.addGeometry(Part.LineSegment(App.Vector(-10, -51.4, 0), App.Vector(-33.75, -51.4, 0)), False)
sketch11.addGeometry(Part.LineSegment(App.Vector(-33.75, -51.4, 0), App.Vector(-33.75, -81.744026, 0)), False)
sketch11.addGeometry(Part.ArcOfCircle(Part.Circle(App.Vector(-27.75, -97.65, 0), App.Vector(0, 0, 1), 17), math.radians(110.667317), math.radians(249.332683)), False)
sketch11.addGeometry(Part.LineSegment(App.Vector(-33.75, -113.555974, 0), App.Vector(-33.75, -143.9, 0)), False)
sketch11.addGeometry(Part.LineSegment(App.Vector(-33.75, -143.9, 0), App.Vector(33.75, -143.9, 0)), False)
sketch11.addGeometry(Part.LineSegment(App.Vector(33.75, -143.9, 0), App.Vector(33.75, -51.4, 0)), False)
sketch11.addGeometry(Part.LineSegment(App.Vector(33.75, -51.4, 0), App.Vector(10, -51.4, 0)), False)
sketch11.addGeometry(Part.ArcOfCircle(Part.Circle(App.Vector(10, -48.825, 0), App.Vector(0, 0, 1), 2.575), math.radians(90), math.radians(270)), False)
sketch11.addGeometry(Part.LineSegment(App.Vector(10, -46.25, 0), App.Vector(33.75, -46.25, 0)), False)
sketch11.addGeometry(Part.LineSegment(App.Vector(33.75, -46.25, 0), App.Vector(33.75, 46.25, 0)), False)
sketch11.addGeometry(Part.LineSegment(App.Vector(33.75, 46.25, 0), App.Vector(10, 46.25, 0)), False)
sketch11.addGeometry(Part.ArcOfCircle(Part.Circle(App.Vector(10, 48.825, 0), App.Vector(0, 0, 1), 2.575), math.radians(90), math.radians(270)), False)
sketch11.addGeometry(Part.LineSegment(App.Vector(10, 51.4, 0), App.Vector(33.75, 51.4, 0)), False)
sketch11.addGeometry(Part.LineSegment(App.Vector(33.75, 51.4, 0), App.Vector(33.75, 143.9, 0)), False)
sketch11.addConstraint(Sketcher.Constraint("Coincident", 0, 2, 1, 1))
sketch11.addConstraint(Sketcher.Constraint("Coincident", 1, 2, 2, 1))
sketch11.addConstraint(Sketcher.Constraint("Coincident", 2, 2, 3, 1))
sketch11.addConstraint(Sketcher.Constraint("Coincident", 3, 2, 4, 1))
sketch11.addConstraint(Sketcher.Constraint("Tangent", 4, 2, 5, 2))
sketch11.addConstraint(Sketcher.Constraint("Tangent", 5, 1, 6, 1))
sketch11.addConstraint(Sketcher.Constraint("Coincident", 6, 2, 7, 1))
sketch11.addConstraint(Sketcher.Constraint("Coincident", 7, 2, 8, 1))
sketch11.addConstraint(Sketcher.Constraint("Coincident", 8, 2, 9, 1))
sketch11.addConstraint(Sketcher.Constraint("Coincident", 9, 2, 10, 1))
sketch11.addConstraint(Sketcher.Constraint("Tangent", 10, 2, 11, 2))
sketch11.addConstraint(Sketcher.Constraint("Tangent", 11, 1, 12, 1))
sketch11.addConstraint(Sketcher.Constraint("Coincident", 12, 2, 13, 1))
sketch11.addConstraint(Sketcher.Constraint("Coincident", 13, 2, 14, 1))
sketch11.addConstraint(Sketcher.Constraint("Coincident", 14, 2, 15, 1))
sketch11.addConstraint(Sketcher.Constraint("Coincident", 15, 2, 16, 1))
sketch11.addConstraint(Sketcher.Constraint("Coincident", 16, 2, 17, 1))
sketch11.addConstraint(Sketcher.Constraint("Coincident", 17, 2, 18, 1))
sketch11.addConstraint(Sketcher.Constraint("Tangent", 18, 2, 19, 2))
sketch11.addConstraint(Sketcher.Constraint("Tangent", 19, 1, 20, 1))
sketch11.addConstraint(Sketcher.Constraint("Coincident", 20, 2, 21, 1))
sketch11.addConstraint(Sketcher.Constraint("Coincident", 21, 2, 22, 1))
sketch11.addConstraint(Sketcher.Constraint("Tangent", 22, 2, 23, 2))
sketch11.addConstraint(Sketcher.Constraint("Tangent", 23, 1, 24, 1))
sketch11.addConstraint(Sketcher.Constraint("Coincident", 24, 2, 25, 1))
sketch11.addConstraint(Sketcher.Constraint("Coincident", 25, 2, 0, 1))
sketch11.addConstraint(Sketcher.Constraint("Horizontal", 0))
sketch11.addConstraint(Sketcher.Constraint("Vertical", 1))
sketch11.addConstraint(Sketcher.Constraint("Vertical", 3))
sketch11.addConstraint(Sketcher.Constraint("Horizontal", 4))
sketch11.addConstraint(Sketcher.Constraint("Horizontal", 6))
sketch11.addConstraint(Sketcher.Constraint("Vertical", 7))
sketch11.addConstraint(Sketcher.Constraint("Vertical", 9))
sketch11.addConstraint(Sketcher.Constraint("Horizontal", 10))
sketch11.addConstraint(Sketcher.Constraint("Horizontal", 12))
sketch11.addConstraint(Sketcher.Constraint("Vertical", 13))
sketch11.addConstraint(Sketcher.Constraint("Vertical", 15))
sketch11.addConstraint(Sketcher.Constraint("Horizontal", 16))
sketch11.addConstraint(Sketcher.Constraint("Vertical", 17))
sketch11.addConstraint(Sketcher.Constraint("Horizontal", 18))
sketch11.addConstraint(Sketcher.Constraint("Horizontal", 20))
sketch11.addConstraint(Sketcher.Constraint("Vertical", 21))
sketch11.addConstraint(Sketcher.Constraint("Horizontal", 22))
sketch11.addConstraint(Sketcher.Constraint("Horizontal", 24))
sketch11.addConstraint(Sketcher.Constraint("Vertical", 25))
sketch11.addConstraint(Sketcher.Constraint("Equal", 2, 8))
sketch11.addConstraint(Sketcher.Constraint("Equal", 5, 11))
sketch11.addConstraint(Sketcher.Constraint("Equal", 8, 14))
sketch11.addConstraint(Sketcher.Constraint("Equal", 11, 19))
sketch11.addConstraint(Sketcher.Constraint("Equal", 19, 23))
sketch11.addConstraint(Sketcher.Constraint("Symmetric", 5, 3, 19, 3, -1, 1))
sketch11.addConstraint(Sketcher.Constraint("Symmetric", 11, 3, 23, 3, -1, 1))
sketch11.addConstraint(Sketcher.Constraint("Symmetric", 0, 2, 16, 2, -1, 1))
sketch11.addConstraint(Sketcher.Constraint("Symmetric", 11, 3, 19, 3, -2))
sketch11.addConstraint(Sketcher.Constraint("Symmetric", 2, 3, 14, 3, -1))
sketch11.addConstraint(Sketcher.Constraint("Symmetric", 7, 2, 8, 2, -1))
sketch11.addConstraint(Sketcher.Constraint("Vertical", 2, 3, 8, 3))
sketch11.addConstraint(Sketcher.Constraint("Vertical", 1, 2, 2, 2))
sketch11.addConstraint(Sketcher.Constraint("Vertical", 3, 2, 6, 2))
sketch11.addConstraint(Sketcher.Constraint("Vertical", 9, 2, 12, 2))
sketch11.addConstraint(Sketcher.Constraint("Vertical", 13, 2, 14, 2))
sketch11.addConstraint(Sketcher.Constraint("Vertical", 17, 2, 20, 2))
sketch11.addConstraint(Sketcher.Constraint("Vertical", 21, 2, 24, 2))
sketch11.addConstraint(Sketcher.Constraint("Equal", 1, 3))
sketch11.addConstraint(Sketcher.Constraint("Equal", 3, 7))
sketch11.addConstraint(Sketcher.Constraint("Radius", 2, Q("17 mm")))
sketch11.addConstraint(Sketcher.Constraint("DistanceX", 0, 2, 0, 1, Q("67.5 mm")))
sketch11.addConstraint(Sketcher.Constraint("DistanceY", 17, 1, 17, 2, Q("92.5 mm")))
sketch11.addConstraint(Sketcher.Constraint("DistanceX", 5, 3, -1, 1, Q("10 mm")))
sketch11.addConstraint(Sketcher.Constraint("Radius", 5, Q("2.575 mm")))
sketch11.addConstraint(Sketcher.Constraint("DistanceX", 0, 2, 2, 3, Q("6 mm")))
sketch11.setExpression("Constraints[65]", "Params.sketch11_radius")
sketch11.setExpression("Constraints[66]", "Params.sketch11_width")
sketch11.setExpression("Constraints[67]", "Params.sketch11_height")
pad11 = doc.addObject("PartDesign::Pad", "Pad010")
body21.addObject(pad11)
pad11.Profile = sketch11
pad11.setExpression("Length", "Params.pad11_length")
body22 = doc.addObject("PartDesign::Body", "Body021")
doc.recompute()

body21.Placement = App.Placement(App.Vector(-99.15, 0, 1), App.Rotation(App.Vector(0, 0, 1), 0))
boolean11 = doc.addObject("PartDesign::Boolean", "Boolean010")
body22.addObject(boolean11)
boolean11.Type = "Fuse"
boolean11.addObjects([body21])
body23 = doc.addObject("PartDesign::Body", "Body022")

# Sketch on XY plane
sketch12 = doc.addObject("Sketcher::SketchObject", "Sketch011")
body23.addObject(sketch12)
sketch12.AttachmentSupport = (doc.getObject("XY_Plane022"), [""])
sketch12.MapMode = "FlatFace"
add_polygon(sketch12, [(-145.5, 145.5), (-145.5, -145.5), (145.5, -145.5), (145.5, 145.5)])  # lines 0-3
sketch12.addConstraint(Sketcher.Constraint("Vertical", 0))
sketch12.addConstraint(Sketcher.Constraint("Horizontal", 1))
sketch12.addConstraint(Sketcher.Constraint("Vertical", 2))
sketch12.addConstraint(Sketcher.Constraint("Horizontal", 3))
sketch12.addConstraint(Sketcher.Constraint("Symmetric", 0, 2, 2, 2, -1, 1))
sketch12.addConstraint(Sketcher.Constraint("Equal", 3, 0))
sketch12.addConstraint(Sketcher.Constraint("DistanceX", 1, 1, 1, 2, Q("291 mm")))
sketch12.setExpression("Constraints[10]", "Params.sketch12_width")
pad12 = doc.addObject("PartDesign::Pad", "Pad011")
body23.addObject(pad12)
pad12.Profile = sketch12
pad12.setExpression("Length", "Params.pad12_length")
doc.recompute()

boolean12 = doc.addObject("PartDesign::Boolean", "Boolean011")
body23.addObject(boolean12)
boolean12.Type = "Cut"
boolean12.addObjects([body2])
doc.recompute()

boolean13 = doc.addObject("PartDesign::Boolean", "Boolean012")
body23.addObject(boolean13)
boolean13.Type = "Cut"
boolean13.addObjects([body4])
doc.recompute()

boolean14 = doc.addObject("PartDesign::Boolean", "Boolean013")
body23.addObject(boolean14)
boolean14.Type = "Cut"
boolean14.addObjects([body6])
doc.recompute()

boolean15 = doc.addObject("PartDesign::Boolean", "Boolean014")
body23.addObject(boolean15)
boolean15.Type = "Cut"
boolean15.addObjects([body8])
doc.recompute()

boolean16 = doc.addObject("PartDesign::Boolean", "Boolean015")
body23.addObject(boolean16)
boolean16.Type = "Cut"
boolean16.addObjects([body10])
doc.recompute()

boolean17 = doc.addObject("PartDesign::Boolean", "Boolean016")
body23.addObject(boolean17)
boolean17.Type = "Cut"
boolean17.addObjects([body12])
doc.recompute()

boolean18 = doc.addObject("PartDesign::Boolean", "Boolean017")
body23.addObject(boolean18)
boolean18.Type = "Cut"
boolean18.addObjects([body14])
doc.recompute()

boolean19 = doc.addObject("PartDesign::Boolean", "Boolean018")
body23.addObject(boolean19)
boolean19.Type = "Cut"
boolean19.addObjects([body16])
doc.recompute()

boolean20 = doc.addObject("PartDesign::Boolean", "Boolean019")
body23.addObject(boolean20)
boolean20.Type = "Cut"
boolean20.addObjects([body18])
doc.recompute()

boolean21 = doc.addObject("PartDesign::Boolean", "Boolean020")
body23.addObject(boolean21)
boolean21.Type = "Cut"
boolean21.addObjects([body20])
doc.recompute()

boolean22 = doc.addObject("PartDesign::Boolean", "Boolean021")
body23.addObject(boolean22)
boolean22.Type = "Cut"
boolean22.addObjects([body22])

# Sketch on XY plane
sketch13 = doc.addObject("Sketcher::SketchObject", "Sketch012")
body23.addObject(sketch13)
sketch13.AttachmentSupport = (doc.getObject("XY_Plane022"), [""])
sketch13.MapMode = "FlatFace"
add_polygon(sketch13, [(-145.5, 145.5), (-145.5, -145.5), (0, -145.5), (0, -87.75), (-10, -97.75), (-10, -47.75), (0, -57.75), (0, 0), (57.75, 0), (47.75, -10), (97.75, -10), (87.75, 0), (145.5, 0), (145.5, 145.5)])  # lines 0-13
sketch13.addConstraint(Sketcher.Constraint("Vertical", 0))
sketch13.addConstraint(Sketcher.Constraint("Horizontal", 1))
sketch13.addConstraint(Sketcher.Constraint("Vertical", 2))
sketch13.addConstraint(Sketcher.Constraint("Vertical", 4))
sketch13.addConstraint(Sketcher.Constraint("Vertical", 6))
sketch13.addConstraint(Sketcher.Constraint("Horizontal", 7))
sketch13.addConstraint(Sketcher.Constraint("Horizontal", 9))
sketch13.addConstraint(Sketcher.Constraint("Horizontal", 11))
sketch13.addConstraint(Sketcher.Constraint("Vertical", 12))
sketch13.addConstraint(Sketcher.Constraint("Horizontal", 13))
sketch13.addConstraint(Sketcher.Constraint("Coincident", 6, 2, -1, 1))
sketch13.addConstraint(Sketcher.Constraint("Symmetric", 0, 2, 12, 2, -1, 1))
sketch13.addConstraint(Sketcher.Constraint("PointOnObject", 1, 2, -2))
sketch13.addConstraint(Sketcher.Constraint("PointOnObject", 10, 2, -1))
sketch13.addConstraint(Sketcher.Constraint("Perpendicular", 3, 5))
sketch13.addConstraint(Sketcher.Constraint("Perpendicular", 5, 8))
sketch13.addConstraint(Sketcher.Constraint("Perpendicular", 8, 10))
sketch13.addConstraint(Sketcher.Constraint("Equal", 7, 11))
sketch13.addConstraint(Sketcher.Constraint("Equal", 13, 0))
sketch13.addConstraint(Sketcher.Constraint("Equal", 11, 2))
sketch13.addConstraint(Sketcher.Constraint("Equal", 9, 4))
sketch13.addConstraint(Sketcher.Constraint("Equal", 2, 6))
sketch13.addConstraint(Sketcher.Constraint("Equal", 3, 5))
sketch13.addConstraint(Sketcher.Constraint("DistanceX", 9, 1, 9, 2, Q("50 mm")))
sketch13.addConstraint(Sketcher.Constraint("DistanceX", 13, 2, 13, 1, Q("291 mm")))
sketch13.addConstraint(Sketcher.Constraint("DistanceX", 3, 2, -1, 1, Q("10 mm")))
sketch13.setExpression("Constraints[37]", "Params.sketch13_width")
sketch13.setExpression("Constraints[38]", "Params.sketch13_width2")
pocket1 = doc.addObject("PartDesign::Pocket", "Pocket")
body23.addObject(pocket1)
pocket1.Profile = sketch13
pocket1.Type = "ThroughAll"
pocket1.Reversed = True

doc.recompute()
